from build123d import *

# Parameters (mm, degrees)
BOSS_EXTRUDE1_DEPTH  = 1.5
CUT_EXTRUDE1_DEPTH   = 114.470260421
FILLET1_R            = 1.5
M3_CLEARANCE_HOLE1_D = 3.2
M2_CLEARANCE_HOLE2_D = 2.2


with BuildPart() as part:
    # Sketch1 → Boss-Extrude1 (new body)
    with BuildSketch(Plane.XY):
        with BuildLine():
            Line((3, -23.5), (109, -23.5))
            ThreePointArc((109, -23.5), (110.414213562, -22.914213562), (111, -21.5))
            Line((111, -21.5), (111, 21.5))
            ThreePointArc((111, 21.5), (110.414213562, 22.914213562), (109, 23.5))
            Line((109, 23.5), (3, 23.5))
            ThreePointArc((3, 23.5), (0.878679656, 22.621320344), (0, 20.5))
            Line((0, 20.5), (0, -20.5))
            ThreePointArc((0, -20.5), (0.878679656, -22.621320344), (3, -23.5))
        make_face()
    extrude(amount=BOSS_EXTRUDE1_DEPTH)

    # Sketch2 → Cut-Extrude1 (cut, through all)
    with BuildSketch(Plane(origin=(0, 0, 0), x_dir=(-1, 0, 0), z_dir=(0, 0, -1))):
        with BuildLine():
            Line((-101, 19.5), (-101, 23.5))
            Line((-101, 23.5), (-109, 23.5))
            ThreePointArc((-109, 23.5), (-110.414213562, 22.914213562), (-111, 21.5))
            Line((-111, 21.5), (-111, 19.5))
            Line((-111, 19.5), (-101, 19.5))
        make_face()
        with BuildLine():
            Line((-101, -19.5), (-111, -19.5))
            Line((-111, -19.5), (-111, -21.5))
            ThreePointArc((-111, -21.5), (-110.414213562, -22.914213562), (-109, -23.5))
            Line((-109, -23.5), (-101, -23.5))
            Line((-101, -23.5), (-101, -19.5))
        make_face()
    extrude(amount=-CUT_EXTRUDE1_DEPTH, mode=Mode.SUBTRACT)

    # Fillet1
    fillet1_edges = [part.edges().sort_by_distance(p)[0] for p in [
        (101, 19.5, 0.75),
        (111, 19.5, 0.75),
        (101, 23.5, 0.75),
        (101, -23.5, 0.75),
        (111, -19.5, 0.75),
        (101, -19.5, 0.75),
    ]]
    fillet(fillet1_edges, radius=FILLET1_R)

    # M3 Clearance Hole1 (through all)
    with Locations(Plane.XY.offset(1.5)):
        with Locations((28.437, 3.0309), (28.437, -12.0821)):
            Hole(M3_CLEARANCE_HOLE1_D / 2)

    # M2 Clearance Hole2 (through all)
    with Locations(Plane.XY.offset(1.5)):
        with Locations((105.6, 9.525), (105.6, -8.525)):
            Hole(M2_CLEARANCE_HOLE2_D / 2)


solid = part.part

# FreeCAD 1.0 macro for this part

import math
import FreeCAD as App
import Part
import Sketcher

V = App.Vector
Q = App.Units.Quantity


def edges_at(feature, points):
    """Names of the edges that pass closest to the given points."""
    edges = feature.Shape.Edges
    near = lambda p: min(range(len(edges)), key=lambda i: edges[i].distToShape(Part.Vertex(*p))[0])
    return sorted({f"Edge{near(p) + 1}" for p in points})

doc = App.newDocument("Part")
body = doc.addObject("PartDesign::Body", "Body")

# Sketch on XY plane
sketch1 = body.newObject("Sketcher::SketchObject", "Sketch")
sketch1.AttachmentSupport = (doc.getObject("XY_Plane"), [""])
sketch1.MapMode = "FlatFace"
sketch1.addGeometry([
    Part.LineSegment(V(3, -23.5, 0), V(109, -23.5, 0)),  # 0
    Part.ArcOfCircle(Part.Circle(V(109, -21.5, 0), V(0, 0, 1), 2), math.radians(-90), math.radians(0)),  # 1
    Part.LineSegment(V(111, -21.5, 0), V(111, 21.5, 0)),  # 2
    Part.ArcOfCircle(Part.Circle(V(109, 21.5, 0), V(0, 0, 1), 2), math.radians(0), math.radians(90)),  # 3
    Part.LineSegment(V(109, 23.5, 0), V(3, 23.5, 0)),  # 4
    Part.ArcOfCircle(Part.Circle(V(3, 20.5, 0), V(0, 0, 1), 3), math.radians(90), math.radians(180)),  # 5
    Part.LineSegment(V(0, 20.5, 0), V(0, -20.5, 0)),  # 6
    Part.ArcOfCircle(Part.Circle(V(3, -20.5, 0), V(0, 0, 1), 3), math.radians(180), math.radians(270)),  # 7
], False)
sketch1.addConstraint([
    Sketcher.Constraint("Tangent", 0, 2, 1, 1),
    Sketcher.Constraint("Tangent", 1, 2, 2, 1),
    Sketcher.Constraint("Tangent", 2, 2, 3, 1),
    Sketcher.Constraint("Tangent", 3, 2, 4, 1),
    Sketcher.Constraint("Tangent", 4, 2, 5, 1),
    Sketcher.Constraint("Tangent", 5, 2, 6, 1),
    Sketcher.Constraint("Tangent", 6, 2, 7, 1),
    Sketcher.Constraint("Tangent", 7, 2, 0, 1),
    Sketcher.Constraint("Horizontal", 0),
    Sketcher.Constraint("Vertical", 2),
    Sketcher.Constraint("Horizontal", 4),
    Sketcher.Constraint("Vertical", 6),
    Sketcher.Constraint("Equal", 1, 3),
    Sketcher.Constraint("Equal", 5, 7),
    Sketcher.Constraint("Symmetric", 5, 2, 6, 2, -1, 1),
    Sketcher.Constraint("Radius", 1, Q("2 mm")),
    Sketcher.Constraint("Radius", 5, Q("3 mm")),
    Sketcher.Constraint("DistanceX", 0, 1, 0, 2, Q("106 mm")),
    Sketcher.Constraint("DistanceY", 2, 1, 2, 2, Q("43 mm")),
])
pad1 = body.newObject("PartDesign::Pad", "Pad")
pad1.Profile = sketch1
pad1.Length = 1.5

# Sketch on XY plane
sketch2 = body.newObject("Sketcher::SketchObject", "Sketch001")
sketch2.AttachmentSupport = (doc.getObject("XY_Plane"), [""])
sketch2.MapMode = "FlatFace"
sketch2.addGeometry([
    Part.LineSegment(V(101, 19.5, 0), V(101, 23.5, 0)),  # 0
    Part.LineSegment(V(101, 23.5, 0), V(109, 23.5, 0)),  # 1
    Part.ArcOfCircle(Part.Circle(V(109, 21.5, 0), V(0, 0, 1), 2), math.radians(0), math.radians(90)),  # 2
    Part.LineSegment(V(111, 21.5, 0), V(111, 19.5, 0)),  # 3
    Part.LineSegment(V(111, 19.5, 0), V(101, 19.5, 0)),  # 4
    Part.LineSegment(V(101, -19.5, 0), V(111, -19.5, 0)),  # 5
    Part.LineSegment(V(111, -19.5, 0), V(111, -21.5, 0)),  # 6
    Part.ArcOfCircle(Part.Circle(V(109, -21.5, 0), V(0, 0, 1), 2), math.radians(-90), math.radians(0)),  # 7
    Part.LineSegment(V(109, -23.5, 0), V(101, -23.5, 0)),  # 8
    Part.LineSegment(V(101, -23.5, 0), V(101, -19.5, 0)),  # 9
], False)
sketch2.addConstraint([
    Sketcher.Constraint("Coincident", 0, 2, 1, 1),
    Sketcher.Constraint("Tangent", 1, 2, 2, 2),
    Sketcher.Constraint("Tangent", 2, 1, 3, 1),
    Sketcher.Constraint("Coincident", 3, 2, 4, 1),
    Sketcher.Constraint("Coincident", 4, 2, 0, 1),
    Sketcher.Constraint("Coincident", 5, 2, 6, 1),
    Sketcher.Constraint("Tangent", 6, 2, 7, 2),
    Sketcher.Constraint("Tangent", 7, 1, 8, 1),
    Sketcher.Constraint("Coincident", 8, 2, 9, 1),
    Sketcher.Constraint("Coincident", 9, 2, 5, 1),
    Sketcher.Constraint("Vertical", 0),
    Sketcher.Constraint("Horizontal", 1),
    Sketcher.Constraint("Vertical", 3),
    Sketcher.Constraint("Horizontal", 4),
    Sketcher.Constraint("Horizontal", 5),
    Sketcher.Constraint("Vertical", 6),
    Sketcher.Constraint("Horizontal", 8),
    Sketcher.Constraint("Vertical", 9),
    Sketcher.Constraint("Equal", 2, 7),
    Sketcher.Constraint("Symmetric", 2, 3, 7, 3, -1),
    Sketcher.Constraint("Symmetric", 4, 2, 9, 2, -1),
    Sketcher.Constraint("Radius", 2, Q("2 mm")),
    Sketcher.Constraint("DistanceX", 1, 1, 1, 2, Q("8 mm")),
    Sketcher.Constraint("DistanceY", 0, 1, 0, 2, Q("4 mm")),
    Sketcher.Constraint("DistanceX", -1, 1, 2, 3, Q("109 mm")),
    Sketcher.Constraint("DistanceY", 7, 3, 2, 3, Q("43 mm")),
])
pocket1 = body.newObject("PartDesign::Pocket", "Pocket")
pocket1.Profile = sketch2
pocket1.Type = "ThroughAll"
pocket1.Reversed = True
doc.recompute()

fillet = body.newObject("PartDesign::Fillet", "Fillet")
fillet.Base = (pocket1, edges_at(pocket1, [
    (101, 19.5, 0.75),
    (111, 19.5, 0.75),
    (101, 23.5, 0.75),
    (101, -23.5, 0.75),
    (111, -19.5, 0.75),
    (101, -19.5, 0.75),
]))
fillet.Radius = 1.5

# Sketch on XY plane
sketch3 = body.newObject("Sketcher::SketchObject", "Sketch002")
sketch3.AttachmentSupport = (doc.getObject("XY_Plane"), [""])
sketch3.MapMode = "FlatFace"
sketch3.AttachmentOffset = App.Placement(V(0, 0, 1.5), App.Rotation())
sketch3.addGeometry([
    Part.Circle(V(28.437, 3.0309, 0), V(0, 0, 1), 1.6),
    Part.Circle(V(28.437, -12.0821, 0), V(0, 0, 1), 1.6),
], False)
sketch3.addConstraint([
    Sketcher.Constraint("Equal", 0, 1),
    Sketcher.Constraint("Vertical", 0, 3, 1, 3),
    Sketcher.Constraint("Diameter", 0, Q("3.2 mm")),
    Sketcher.Constraint("DistanceX", -1, 1, 0, 3, Q("28.437 mm")),
    Sketcher.Constraint("DistanceY", 1, 3, 0, 3, Q("15.113 mm")),
    Sketcher.Constraint("DistanceY", -1, 1, 0, 3, Q("3.0309 mm")),
])
doc.recompute()
hole = body.newObject("PartDesign::Hole", "Hole")
hole.Profile = sketch3
hole.ThreadType = "None"
hole.Diameter = 3.2
hole.DepthType = "ThroughAll"

# Sketch on XY plane
sketch4 = body.newObject("Sketcher::SketchObject", "Sketch003")
sketch4.AttachmentSupport = (doc.getObject("XY_Plane"), [""])
sketch4.MapMode = "FlatFace"
sketch4.AttachmentOffset = App.Placement(V(0, 0, 1.5), App.Rotation())
sketch4.addGeometry([
    Part.Circle(V(105.6, 9.525, 0), V(0, 0, 1), 1.1),
    Part.Circle(V(105.6, -8.525, 0), V(0, 0, 1), 1.1),
], False)
sketch4.addConstraint([
    Sketcher.Constraint("Equal", 0, 1),
    Sketcher.Constraint("Vertical", 0, 3, 1, 3),
    Sketcher.Constraint("Diameter", 0, Q("2.2 mm")),
    Sketcher.Constraint("DistanceX", -1, 1, 0, 3, Q("105.6 mm")),
    Sketcher.Constraint("DistanceY", 1, 3, 0, 3, Q("18.05 mm")),
    Sketcher.Constraint("DistanceY", -1, 1, 0, 3, Q("9.525 mm")),
])
doc.recompute()
hole2 = body.newObject("PartDesign::Hole", "Hole001")
hole2.Profile = sketch4
hole2.ThreadType = "None"
hole2.Diameter = 2.2
hole2.DepthType = "ThroughAll"

doc.recompute()
